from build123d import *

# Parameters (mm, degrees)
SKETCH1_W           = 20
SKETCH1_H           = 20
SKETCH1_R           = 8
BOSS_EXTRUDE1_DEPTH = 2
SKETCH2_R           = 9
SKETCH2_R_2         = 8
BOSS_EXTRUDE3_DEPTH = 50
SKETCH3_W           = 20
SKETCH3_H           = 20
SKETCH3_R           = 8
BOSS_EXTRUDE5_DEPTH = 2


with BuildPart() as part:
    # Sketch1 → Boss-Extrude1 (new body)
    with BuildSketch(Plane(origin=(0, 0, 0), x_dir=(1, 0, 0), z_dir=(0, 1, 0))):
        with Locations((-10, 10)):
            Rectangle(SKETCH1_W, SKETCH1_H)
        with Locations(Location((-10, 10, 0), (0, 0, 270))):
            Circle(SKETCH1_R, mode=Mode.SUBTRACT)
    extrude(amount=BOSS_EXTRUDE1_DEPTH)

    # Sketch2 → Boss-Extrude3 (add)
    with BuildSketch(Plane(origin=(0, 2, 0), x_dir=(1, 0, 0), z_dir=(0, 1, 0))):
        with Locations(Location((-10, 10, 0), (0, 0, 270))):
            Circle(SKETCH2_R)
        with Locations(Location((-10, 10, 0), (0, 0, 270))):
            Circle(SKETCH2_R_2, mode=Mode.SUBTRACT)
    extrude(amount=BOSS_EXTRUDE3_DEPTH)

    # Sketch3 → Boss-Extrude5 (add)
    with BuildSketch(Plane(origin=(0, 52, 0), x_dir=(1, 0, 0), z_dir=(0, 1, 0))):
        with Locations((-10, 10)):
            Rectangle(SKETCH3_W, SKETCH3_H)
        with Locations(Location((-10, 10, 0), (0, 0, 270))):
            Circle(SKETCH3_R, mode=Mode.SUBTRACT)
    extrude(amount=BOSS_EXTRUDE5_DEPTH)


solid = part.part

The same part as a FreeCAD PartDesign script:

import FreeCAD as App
import Part
import Sketcher

V = App.Vector


def add_polygon(sketch, points):
    """Adds a closed chain of lines whose ends are joined by coincident constraints."""
    first, n = sketch.GeometryCount, len(points)
    for a, b in zip(points, points[1:] + points[:1]):
        sketch.addGeometry(Part.LineSegment(App.Vector(*a, 0), App.Vector(*b, 0)), False)
    for i in range(n):
        sketch.addConstraint(Sketcher.Constraint("Coincident", first + i, 2, first + (i + 1) % n, 1))

doc = App.newDocument("Part")
body = doc.addObject("PartDesign::Body", "Body")

# Sketch on XZ plane
sketch1 = body.newObject("Sketcher::SketchObject", "Sketch")
sketch1.AttachmentSupport = (doc.getObject("XZ_Plane"), [""])
sketch1.MapMode = "FlatFace"
add_polygon(sketch1, [(-20, -20), (-20, 0), (0, 0), (0, -20)])  # lines 0-3
sketch1.addGeometry(Part.Circle(V(-10, -10, 0), V(0, 0, 1), 8), False)  # 4
sketch1.addConstraint(Sketcher.Constraint("Vertical", 0))
sketch1.addConstraint(Sketcher.Constraint("Horizontal", 1))
sketch1.addConstraint(Sketcher.Constraint("Vertical", 2))
sketch1.addConstraint(Sketcher.Constraint("Horizontal", 3))
sketch1.addConstraint(Sketcher.Constraint("Coincident", 1, 2, -1, 1))
sketch1.addConstraint(Sketcher.Constraint("Equal", 3, 0))
sketch1.addConstraint(Sketcher.Constraint("Diameter", 4, 16.0))
sketch1.addConstraint(Sketcher.Constraint("DistanceX", 1, 1, 1, 2, 20.0))
sketch1.addConstraint(Sketcher.Constraint("DistanceX", 4, 3, -1, 1, 10.0))
sketch1.addConstraint(Sketcher.Constraint("DistanceY", 4, 3, -1, 1, 10.0))
pad1 = body.newObject("PartDesign::Pad", "Pad")
pad1.Profile = sketch1
pad1.Length = 2
pad1.Reversed = True

# Sketch on XZ plane
sketch2 = body.newObject("Sketcher::SketchObject", "Sketch001")
sketch2.AttachmentSupport = (doc.getObject("XZ_Plane"), [""])
sketch2.MapMode = "FlatFace"
sketch2.AttachmentOffset = App.Placement(V(0, 0, -2), App.Rotation())
sketch2.addGeometry(Part.Circle(V(-10, -10, 0), V(0, 0, 1), 9), False)
sketch2.addGeometry(Part.Circle(V(-10, -10, 0), V(0, 0, 1), 8), False)
sketch2.addConstraint(Sketcher.Constraint("Coincident", 1, 3, 0, 3))
sketch2.addConstraint(Sketcher.Constraint("Diameter", 0, 18.0))
sketch2.addConstraint(Sketcher.Constraint("Diameter", 1, 16.0))
sketch2.addConstraint(Sketcher.Constraint("DistanceX", 0, 3, -1, 1, 10.0))
sketch2.addConstraint(Sketcher.Constraint("DistanceY", 0, 3, -1, 1, 10.0))
pad2 = body.newObject("PartDesign::Pad", "Pad001")
pad2.Profile = sketch2
pad2.Length = 50
pad2.Reversed = True

# Sketch on XZ plane
sketch3 = body.newObject("Sketcher::SketchObject", "Sketch002")
sketch3.AttachmentSupport = (doc.getObject("XZ_Plane"), [""])
sketch3.MapMode = "FlatFace"
sketch3.AttachmentOffset = App.Placement(V(0, 0, -52), App.Rotation())
add_polygon(sketch3, [(-20, -20), (-20, 0), (0, 0), (0, -20)])  # lines 0-3
sketch3.addGeometry(Part.Circle(V(-10, -10, 0), V(0, 0, 1), 8), False)  # 4
sketch3.addConstraint(Sketcher.Constraint("Vertical", 0))
sketch3.addConstraint(Sketcher.Constraint("Horizontal", 1))
sketch3.addConstraint(Sketcher.Constraint("Vertical", 2))
sketch3.addConstraint(Sketcher.Constraint("Horizontal", 3))
sketch3.addConstraint(Sketcher.Constraint("Coincident", 1, 2, -1, 1))
sketch3.addConstraint(Sketcher.Constraint("Equal", 3, 0))
sketch3.addConstraint(Sketcher.Constraint("Diameter", 4, 16.0))
sketch3.addConstraint(Sketcher.Constraint("DistanceX", 1, 1, 1, 2, 20.0))
sketch3.addConstraint(Sketcher.Constraint("DistanceX", 4, 3, -1, 1, 10.0))
sketch3.addConstraint(Sketcher.Constraint("DistanceY", 4, 3, -1, 1, 10.0))
pad3 = body.newObject("PartDesign::Pad", "Pad002")
pad3.Profile = sketch3
pad3.Length = 2
pad3.Reversed = True

doc.recompute()
